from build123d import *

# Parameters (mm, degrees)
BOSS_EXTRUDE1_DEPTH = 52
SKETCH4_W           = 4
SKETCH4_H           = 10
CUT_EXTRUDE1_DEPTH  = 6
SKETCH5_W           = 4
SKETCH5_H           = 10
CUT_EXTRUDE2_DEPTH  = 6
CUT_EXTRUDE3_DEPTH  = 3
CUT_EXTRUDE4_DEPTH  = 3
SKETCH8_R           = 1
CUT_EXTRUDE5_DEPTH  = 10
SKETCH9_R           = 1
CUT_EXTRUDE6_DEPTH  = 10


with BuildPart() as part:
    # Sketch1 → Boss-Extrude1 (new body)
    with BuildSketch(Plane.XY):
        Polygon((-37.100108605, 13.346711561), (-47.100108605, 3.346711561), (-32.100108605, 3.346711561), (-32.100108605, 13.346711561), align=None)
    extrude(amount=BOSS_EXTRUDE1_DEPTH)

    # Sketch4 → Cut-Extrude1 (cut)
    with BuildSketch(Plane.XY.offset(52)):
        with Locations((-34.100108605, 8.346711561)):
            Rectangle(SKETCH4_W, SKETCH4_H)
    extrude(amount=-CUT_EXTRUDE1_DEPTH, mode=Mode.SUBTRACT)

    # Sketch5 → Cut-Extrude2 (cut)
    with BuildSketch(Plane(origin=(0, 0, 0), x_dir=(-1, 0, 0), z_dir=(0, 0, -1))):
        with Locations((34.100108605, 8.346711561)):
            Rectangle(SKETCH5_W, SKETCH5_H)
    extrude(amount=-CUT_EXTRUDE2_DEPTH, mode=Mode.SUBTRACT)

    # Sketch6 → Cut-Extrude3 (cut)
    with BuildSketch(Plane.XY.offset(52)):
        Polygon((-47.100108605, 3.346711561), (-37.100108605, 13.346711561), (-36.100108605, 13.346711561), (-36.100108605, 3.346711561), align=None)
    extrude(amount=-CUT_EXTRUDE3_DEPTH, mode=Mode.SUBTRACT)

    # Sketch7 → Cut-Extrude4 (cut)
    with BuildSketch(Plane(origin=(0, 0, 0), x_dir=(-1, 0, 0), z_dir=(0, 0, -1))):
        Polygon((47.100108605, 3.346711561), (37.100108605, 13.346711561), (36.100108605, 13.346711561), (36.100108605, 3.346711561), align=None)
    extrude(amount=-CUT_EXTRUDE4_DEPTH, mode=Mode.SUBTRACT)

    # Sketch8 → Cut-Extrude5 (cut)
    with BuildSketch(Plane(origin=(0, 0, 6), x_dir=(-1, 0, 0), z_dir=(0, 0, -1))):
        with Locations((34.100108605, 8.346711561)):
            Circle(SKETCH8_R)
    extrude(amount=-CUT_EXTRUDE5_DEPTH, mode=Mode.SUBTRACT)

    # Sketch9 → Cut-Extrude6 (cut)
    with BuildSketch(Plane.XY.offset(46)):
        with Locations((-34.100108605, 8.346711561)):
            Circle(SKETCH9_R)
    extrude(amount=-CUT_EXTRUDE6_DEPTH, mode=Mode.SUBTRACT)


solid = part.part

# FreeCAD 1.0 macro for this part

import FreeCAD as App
import Part
import Sketcher
from FreeCAD import Vector
Q = App.Units.Quantity

doc = App.newDocument("Part")
body = doc.addObject("PartDesign::Body", "Body")

# Sketch on XY plane
sketch1 = body.newObject("Sketcher::SketchObject", "Sketch")
sketch1.AttachmentSupport = (doc.getObject("XY_Plane"), [""])
sketch1.MapMode = "FlatFace"
sketch1.addGeometry(Part.LineSegment(Vector(-37.100109, 13.346712, 0), Vector(-47.100109, 3.346712, 0)), False)
sketch1.addGeometry(Part.LineSegment(Vector(-47.100109, 3.346712, 0), Vector(-32.100109, 3.346712, 0)), False)
sketch1.addGeometry(Part.LineSegment(Vector(-32.100109, 3.346712, 0), Vector(-32.100109, 13.346712, 0)), False)
sketch1.addGeometry(Part.LineSegment(Vector(-32.100109, 13.346712, 0), Vector(-37.100109, 13.346712, 0)), False)
sketch1.addConstraint(Sketcher.Constraint("Coincident", 0, 2, 1, 1))
sketch1.addConstraint(Sketcher.Constraint("Coincident", 1, 2, 2, 1))
sketch1.addConstraint(Sketcher.Constraint("Coincident", 2, 2, 3, 1))
sketch1.addConstraint(Sketcher.Constraint("Coincident", 3, 2, 0, 1))
sketch1.addConstraint(Sketcher.Constraint("Horizontal", 1))
sketch1.addConstraint(Sketcher.Constraint("Vertical", 2))
sketch1.addConstraint(Sketcher.Constraint("Horizontal", 3))
sketch1.addConstraint(Sketcher.Constraint("DistanceX", 1, 1, 1, 2, Q("15 mm")))
sketch1.addConstraint(Sketcher.Constraint("DistanceX", 3, 2, 3, 1, Q("5 mm")))
sketch1.addConstraint(Sketcher.Constraint("DistanceY", 2, 1, 2, 2, Q("10 mm")))
sketch1.addConstraint(Sketcher.Constraint("DistanceX", 0, 2, -1, 1, Q("47.100109 mm")))
sketch1.addConstraint(Sketcher.Constraint("DistanceY", -1, 1, 0, 2, Q("3.346712 mm")))
pad1 = body.newObject("PartDesign::Pad", "Pad")
pad1.Profile = sketch1
pad1.Length = 52

# Sketch on XY plane
sketch2 = body.newObject("Sketcher::SketchObject", "Sketch001")
sketch2.AttachmentSupport = (doc.getObject("XY_Plane"), [""])
sketch2.MapMode = "FlatFace"
sketch2.AttachmentOffset = App.Placement(Vector(0, 0, 52), App.Rotation())
sketch2.addGeometry(Part.LineSegment(Vector(-36.100109, 13.346712, 0), Vector(-36.100109, 3.346712, 0)), False)
sketch2.addGeometry(Part.LineSegment(Vector(-36.100109, 3.346712, 0), Vector(-32.100109, 3.346712, 0)), False)
sketch2.addGeometry(Part.LineSegment(Vector(-32.100109, 3.346712, 0), Vector(-32.100109, 13.346712, 0)), False)
sketch2.addGeometry(Part.LineSegment(Vector(-32.100109, 13.346712, 0), Vector(-36.100109, 13.346712, 0)), False)
sketch2.addConstraint(Sketcher.Constraint("Coincident", 0, 2, 1, 1))
sketch2.addConstraint(Sketcher.Constraint("Coincident", 1, 2, 2, 1))
sketch2.addConstraint(Sketcher.Constraint("Coincident", 2, 2, 3, 1))
sketch2.addConstraint(Sketcher.Constraint("Coincident", 3, 2, 0, 1))
sketch2.addConstraint(Sketcher.Constraint("Vertical", 0))
sketch2.addConstraint(Sketcher.Constraint("Horizontal", 1))
sketch2.addConstraint(Sketcher.Constraint("Vertical", 2))
sketch2.addConstraint(Sketcher.Constraint("Horizontal", 3))
sketch2.addConstraint(Sketcher.Constraint("DistanceX", 1, 1, 1, 2, Q("4 mm")))
sketch2.addConstraint(Sketcher.Constraint("DistanceY", 0, 2, 0, 1, Q("10 mm")))
sketch2.addConstraint(Sketcher.Constraint("DistanceX", 0, 2, -1, 1, Q("36.100109 mm")))
sketch2.addConstraint(Sketcher.Constraint("DistanceY", -1, 1, 0, 2, Q("3.346712 mm")))
pocket1 = body.newObject("PartDesign::Pocket", "Pocket")
pocket1.Profile = sketch2
pocket1.Length = 6

# Sketch on XY plane
sketch3 = body.newObject("Sketcher::SketchObject", "Sketch002")
sketch3.AttachmentSupport = (doc.getObject("XY_Plane"), [""])
sketch3.MapMode = "FlatFace"
sketch3.addGeometry(Part.LineSegment(Vector(-32.100109, 13.346712, 0), Vector(-32.100109, 3.346712, 0)), False)
sketch3.addGeometry(Part.LineSegment(Vector(-32.100109, 3.346712, 0), Vector(-36.100109, 3.346712, 0)), False)
sketch3.addGeometry(Part.LineSegment(Vector(-36.100109, 3.346712, 0), Vector(-36.100109, 13.346712, 0)), False)
sketch3.addGeometry(Part.LineSegment(Vector(-36.100109, 13.346712, 0), Vector(-32.100109, 13.346712, 0)), False)
sketch3.addConstraint(Sketcher.Constraint("Coincident", 0, 2, 1, 1))
sketch3.addConstraint(Sketcher.Constraint("Coincident", 1, 2, 2, 1))
sketch3.addConstraint(Sketcher.Constraint("Coincident", 2, 2, 3, 1))
sketch3.addConstraint(Sketcher.Constraint("Coincident", 3, 2, 0, 1))
sketch3.addConstraint(Sketcher.Constraint("Vertical", 0))
sketch3.addConstraint(Sketcher.Constraint("Horizontal", 1))
sketch3.addConstraint(Sketcher.Constraint("Vertical", 2))
sketch3.addConstraint(Sketcher.Constraint("Horizontal", 3))
sketch3.addConstraint(Sketcher.Constraint("DistanceX", 1, 2, 1, 1, Q("4 mm")))
sketch3.addConstraint(Sketcher.Constraint("DistanceY", 0, 2, 0, 1, Q("10 mm")))
sketch3.addConstraint(Sketcher.Constraint("DistanceX", 0, 2, -1, 1, Q("32.100109 mm")))
sketch3.addConstraint(Sketcher.Constraint("DistanceY", -1, 1, 0, 2, Q("3.346712 mm")))
pocket2 = body.newObject("PartDesign::Pocket", "Pocket001")
pocket2.Profile = sketch3
pocket2.Length = 6
pocket2.Reversed = True

# Sketch on XY plane
sketch4 = body.newObject("Sketcher::SketchObject", "Sketch003")
sketch4.AttachmentSupport = (doc.getObject("XY_Plane"), [""])
sketch4.MapMode = "FlatFace"
sketch4.AttachmentOffset = App.Placement(Vector(0, 0, 52), App.Rotation())
sketch4.addGeometry(Part.LineSegment(Vector(-37.100109, 13.346712, 0), Vector(-47.100109, 3.346712, 0)), False)
sketch4.addGeometry(Part.LineSegment(Vector(-47.100109, 3.346712, 0), Vector(-36.100109, 3.346712, 0)), False)
sketch4.addGeometry(Part.LineSegment(Vector(-36.100109, 3.346712, 0), Vector(-36.100109, 13.346712, 0)), False)
sketch4.addGeometry(Part.LineSegment(Vector(-36.100109, 13.346712, 0), Vector(-37.100109, 13.346712, 0)), False)
sketch4.addConstraint(Sketcher.Constraint("Coincident", 0, 2, 1, 1))
sketch4.addConstraint(Sketcher.Constraint("Coincident", 1, 2, 2, 1))
sketch4.addConstraint(Sketcher.Constraint("Coincident", 2, 2, 3, 1))
sketch4.addConstraint(Sketcher.Constraint("Coincident", 3, 2, 0, 1))
sketch4.addConstraint(Sketcher.Constraint("Horizontal", 1))
sketch4.addConstraint(Sketcher.Constraint("Vertical", 2))
sketch4.addConstraint(Sketcher.Constraint("Horizontal", 3))
sketch4.addConstraint(Sketcher.Constraint("DistanceX", 1, 1, 1, 2, Q("11 mm")))
sketch4.addConstraint(Sketcher.Constraint("DistanceX", 3, 2, 3, 1, Q("1 mm")))
sketch4.addConstraint(Sketcher.Constraint("DistanceY", 2, 1, 2, 2, Q("10 mm")))
sketch4.addConstraint(Sketcher.Constraint("DistanceX", 0, 2, -1, 1, Q("47.100109 mm")))
sketch4.addConstraint(Sketcher.Constraint("DistanceY", -1, 1, 0, 2, Q("3.346712 mm")))
pocket3 = body.newObject("PartDesign::Pocket", "Pocket002")
pocket3.Profile = sketch4
pocket3.Length = 3

# Sketch on XY plane
sketch5 = body.newObject("Sketcher::SketchObject", "Sketch004")
sketch5.AttachmentSupport = (doc.getObject("XY_Plane"), [""])
sketch5.MapMode = "FlatFace"
sketch5.addGeometry(Part.LineSegment(Vector(-47.100109, 3.346712, 0), Vector(-37.100109, 13.346712, 0)), False)
sketch5.addGeometry(Part.LineSegment(Vector(-37.100109, 13.346712, 0), Vector(-36.100109, 13.346712, 0)), False)
sketch5.addGeometry(Part.LineSegment(Vector(-36.100109, 13.346712, 0), Vector(-36.100109, 3.346712, 0)), False)
sketch5.addGeometry(Part.LineSegment(Vector(-36.100109, 3.346712, 0), Vector(-47.100109, 3.346712, 0)), False)
sketch5.addConstraint(Sketcher.Constraint("Coincident", 0, 2, 1, 1))
sketch5.addConstraint(Sketcher.Constraint("Coincident", 1, 2, 2, 1))
sketch5.addConstraint(Sketcher.Constraint("Coincident", 2, 2, 3, 1))
sketch5.addConstraint(Sketcher.Constraint("Coincident", 3, 2, 0, 1))
sketch5.addConstraint(Sketcher.Constraint("Horizontal", 1))
sketch5.addConstraint(Sketcher.Constraint("Vertical", 2))
sketch5.addConstraint(Sketcher.Constraint("Horizontal", 3))
sketch5.addConstraint(Sketcher.Constraint("DistanceX", 1, 1, 1, 2, Q("1 mm")))
sketch5.addConstraint(Sketcher.Constraint("DistanceX", 3, 2, 3, 1, Q("11 mm")))
sketch5.addConstraint(Sketcher.Constraint("DistanceY", 2, 2, 2, 1, Q("10 mm")))
sketch5.addConstraint(Sketcher.Constraint("DistanceX", 0, 2, -1, 1, Q("37.100109 mm")))
sketch5.addConstraint(Sketcher.Constraint("DistanceY", -1, 1, 0, 2, Q("13.346712 mm")))
pocket4 = body.newObject("PartDesign::Pocket", "Pocket003")
pocket4.Profile = sketch5
pocket4.Length = 3
pocket4.Reversed = True

# Sketch on XY plane
sketch6 = body.newObject("Sketcher::SketchObject", "Sketch005")
sketch6.AttachmentSupport = (doc.getObject("XY_Plane"), [""])
sketch6.MapMode = "FlatFace"
sketch6.AttachmentOffset = App.Placement(Vector(0, 0, 6), App.Rotation())
sketch6.addGeometry(Part.Circle(Vector(-34.100109, 8.346712, 0), Vector(0, 0, 1), 1), False)
sketch6.addConstraint(Sketcher.Constraint("Diameter", 0, Q("2 mm")))
sketch6.addConstraint(Sketcher.Constraint("DistanceX", 0, 3, -1, 1, Q("34.100109 mm")))
sketch6.addConstraint(Sketcher.Constraint("DistanceY", -1, 1, 0, 3, Q("8.346712 mm")))
pocket5 = body.newObject("PartDesign::Pocket", "Pocket004")
pocket5.Profile = sketch6
pocket5.Length = 10
pocket5.Reversed = True

# Sketch on XY plane
sketch7 = body.newObject("Sketcher::SketchObject", "Sketch006")
sketch7.AttachmentSupport = (doc.getObject("XY_Plane"), [""])
sketch7.MapMode = "FlatFace"
sketch7.AttachmentOffset = App.Placement(Vector(0, 0, 46), App.Rotation())
sketch7.addGeometry(Part.Circle(Vector(-34.100109, 8.346712, 0), Vector(0, 0, 1), 1), False)
sketch7.addConstraint(Sketcher.Constraint("Diameter", 0, Q("2 mm")))
sketch7.addConstraint(Sketcher.Constraint("DistanceX", 0, 3, -1, 1, Q("34.100109 mm")))
sketch7.addConstraint(Sketcher.Constraint("DistanceY", -1, 1, 0, 3, Q("8.346712 mm")))
pocket6 = body.newObject("PartDesign::Pocket", "Pocket005")
pocket6.Profile = sketch7
pocket6.Length = 10

doc.recompute()
